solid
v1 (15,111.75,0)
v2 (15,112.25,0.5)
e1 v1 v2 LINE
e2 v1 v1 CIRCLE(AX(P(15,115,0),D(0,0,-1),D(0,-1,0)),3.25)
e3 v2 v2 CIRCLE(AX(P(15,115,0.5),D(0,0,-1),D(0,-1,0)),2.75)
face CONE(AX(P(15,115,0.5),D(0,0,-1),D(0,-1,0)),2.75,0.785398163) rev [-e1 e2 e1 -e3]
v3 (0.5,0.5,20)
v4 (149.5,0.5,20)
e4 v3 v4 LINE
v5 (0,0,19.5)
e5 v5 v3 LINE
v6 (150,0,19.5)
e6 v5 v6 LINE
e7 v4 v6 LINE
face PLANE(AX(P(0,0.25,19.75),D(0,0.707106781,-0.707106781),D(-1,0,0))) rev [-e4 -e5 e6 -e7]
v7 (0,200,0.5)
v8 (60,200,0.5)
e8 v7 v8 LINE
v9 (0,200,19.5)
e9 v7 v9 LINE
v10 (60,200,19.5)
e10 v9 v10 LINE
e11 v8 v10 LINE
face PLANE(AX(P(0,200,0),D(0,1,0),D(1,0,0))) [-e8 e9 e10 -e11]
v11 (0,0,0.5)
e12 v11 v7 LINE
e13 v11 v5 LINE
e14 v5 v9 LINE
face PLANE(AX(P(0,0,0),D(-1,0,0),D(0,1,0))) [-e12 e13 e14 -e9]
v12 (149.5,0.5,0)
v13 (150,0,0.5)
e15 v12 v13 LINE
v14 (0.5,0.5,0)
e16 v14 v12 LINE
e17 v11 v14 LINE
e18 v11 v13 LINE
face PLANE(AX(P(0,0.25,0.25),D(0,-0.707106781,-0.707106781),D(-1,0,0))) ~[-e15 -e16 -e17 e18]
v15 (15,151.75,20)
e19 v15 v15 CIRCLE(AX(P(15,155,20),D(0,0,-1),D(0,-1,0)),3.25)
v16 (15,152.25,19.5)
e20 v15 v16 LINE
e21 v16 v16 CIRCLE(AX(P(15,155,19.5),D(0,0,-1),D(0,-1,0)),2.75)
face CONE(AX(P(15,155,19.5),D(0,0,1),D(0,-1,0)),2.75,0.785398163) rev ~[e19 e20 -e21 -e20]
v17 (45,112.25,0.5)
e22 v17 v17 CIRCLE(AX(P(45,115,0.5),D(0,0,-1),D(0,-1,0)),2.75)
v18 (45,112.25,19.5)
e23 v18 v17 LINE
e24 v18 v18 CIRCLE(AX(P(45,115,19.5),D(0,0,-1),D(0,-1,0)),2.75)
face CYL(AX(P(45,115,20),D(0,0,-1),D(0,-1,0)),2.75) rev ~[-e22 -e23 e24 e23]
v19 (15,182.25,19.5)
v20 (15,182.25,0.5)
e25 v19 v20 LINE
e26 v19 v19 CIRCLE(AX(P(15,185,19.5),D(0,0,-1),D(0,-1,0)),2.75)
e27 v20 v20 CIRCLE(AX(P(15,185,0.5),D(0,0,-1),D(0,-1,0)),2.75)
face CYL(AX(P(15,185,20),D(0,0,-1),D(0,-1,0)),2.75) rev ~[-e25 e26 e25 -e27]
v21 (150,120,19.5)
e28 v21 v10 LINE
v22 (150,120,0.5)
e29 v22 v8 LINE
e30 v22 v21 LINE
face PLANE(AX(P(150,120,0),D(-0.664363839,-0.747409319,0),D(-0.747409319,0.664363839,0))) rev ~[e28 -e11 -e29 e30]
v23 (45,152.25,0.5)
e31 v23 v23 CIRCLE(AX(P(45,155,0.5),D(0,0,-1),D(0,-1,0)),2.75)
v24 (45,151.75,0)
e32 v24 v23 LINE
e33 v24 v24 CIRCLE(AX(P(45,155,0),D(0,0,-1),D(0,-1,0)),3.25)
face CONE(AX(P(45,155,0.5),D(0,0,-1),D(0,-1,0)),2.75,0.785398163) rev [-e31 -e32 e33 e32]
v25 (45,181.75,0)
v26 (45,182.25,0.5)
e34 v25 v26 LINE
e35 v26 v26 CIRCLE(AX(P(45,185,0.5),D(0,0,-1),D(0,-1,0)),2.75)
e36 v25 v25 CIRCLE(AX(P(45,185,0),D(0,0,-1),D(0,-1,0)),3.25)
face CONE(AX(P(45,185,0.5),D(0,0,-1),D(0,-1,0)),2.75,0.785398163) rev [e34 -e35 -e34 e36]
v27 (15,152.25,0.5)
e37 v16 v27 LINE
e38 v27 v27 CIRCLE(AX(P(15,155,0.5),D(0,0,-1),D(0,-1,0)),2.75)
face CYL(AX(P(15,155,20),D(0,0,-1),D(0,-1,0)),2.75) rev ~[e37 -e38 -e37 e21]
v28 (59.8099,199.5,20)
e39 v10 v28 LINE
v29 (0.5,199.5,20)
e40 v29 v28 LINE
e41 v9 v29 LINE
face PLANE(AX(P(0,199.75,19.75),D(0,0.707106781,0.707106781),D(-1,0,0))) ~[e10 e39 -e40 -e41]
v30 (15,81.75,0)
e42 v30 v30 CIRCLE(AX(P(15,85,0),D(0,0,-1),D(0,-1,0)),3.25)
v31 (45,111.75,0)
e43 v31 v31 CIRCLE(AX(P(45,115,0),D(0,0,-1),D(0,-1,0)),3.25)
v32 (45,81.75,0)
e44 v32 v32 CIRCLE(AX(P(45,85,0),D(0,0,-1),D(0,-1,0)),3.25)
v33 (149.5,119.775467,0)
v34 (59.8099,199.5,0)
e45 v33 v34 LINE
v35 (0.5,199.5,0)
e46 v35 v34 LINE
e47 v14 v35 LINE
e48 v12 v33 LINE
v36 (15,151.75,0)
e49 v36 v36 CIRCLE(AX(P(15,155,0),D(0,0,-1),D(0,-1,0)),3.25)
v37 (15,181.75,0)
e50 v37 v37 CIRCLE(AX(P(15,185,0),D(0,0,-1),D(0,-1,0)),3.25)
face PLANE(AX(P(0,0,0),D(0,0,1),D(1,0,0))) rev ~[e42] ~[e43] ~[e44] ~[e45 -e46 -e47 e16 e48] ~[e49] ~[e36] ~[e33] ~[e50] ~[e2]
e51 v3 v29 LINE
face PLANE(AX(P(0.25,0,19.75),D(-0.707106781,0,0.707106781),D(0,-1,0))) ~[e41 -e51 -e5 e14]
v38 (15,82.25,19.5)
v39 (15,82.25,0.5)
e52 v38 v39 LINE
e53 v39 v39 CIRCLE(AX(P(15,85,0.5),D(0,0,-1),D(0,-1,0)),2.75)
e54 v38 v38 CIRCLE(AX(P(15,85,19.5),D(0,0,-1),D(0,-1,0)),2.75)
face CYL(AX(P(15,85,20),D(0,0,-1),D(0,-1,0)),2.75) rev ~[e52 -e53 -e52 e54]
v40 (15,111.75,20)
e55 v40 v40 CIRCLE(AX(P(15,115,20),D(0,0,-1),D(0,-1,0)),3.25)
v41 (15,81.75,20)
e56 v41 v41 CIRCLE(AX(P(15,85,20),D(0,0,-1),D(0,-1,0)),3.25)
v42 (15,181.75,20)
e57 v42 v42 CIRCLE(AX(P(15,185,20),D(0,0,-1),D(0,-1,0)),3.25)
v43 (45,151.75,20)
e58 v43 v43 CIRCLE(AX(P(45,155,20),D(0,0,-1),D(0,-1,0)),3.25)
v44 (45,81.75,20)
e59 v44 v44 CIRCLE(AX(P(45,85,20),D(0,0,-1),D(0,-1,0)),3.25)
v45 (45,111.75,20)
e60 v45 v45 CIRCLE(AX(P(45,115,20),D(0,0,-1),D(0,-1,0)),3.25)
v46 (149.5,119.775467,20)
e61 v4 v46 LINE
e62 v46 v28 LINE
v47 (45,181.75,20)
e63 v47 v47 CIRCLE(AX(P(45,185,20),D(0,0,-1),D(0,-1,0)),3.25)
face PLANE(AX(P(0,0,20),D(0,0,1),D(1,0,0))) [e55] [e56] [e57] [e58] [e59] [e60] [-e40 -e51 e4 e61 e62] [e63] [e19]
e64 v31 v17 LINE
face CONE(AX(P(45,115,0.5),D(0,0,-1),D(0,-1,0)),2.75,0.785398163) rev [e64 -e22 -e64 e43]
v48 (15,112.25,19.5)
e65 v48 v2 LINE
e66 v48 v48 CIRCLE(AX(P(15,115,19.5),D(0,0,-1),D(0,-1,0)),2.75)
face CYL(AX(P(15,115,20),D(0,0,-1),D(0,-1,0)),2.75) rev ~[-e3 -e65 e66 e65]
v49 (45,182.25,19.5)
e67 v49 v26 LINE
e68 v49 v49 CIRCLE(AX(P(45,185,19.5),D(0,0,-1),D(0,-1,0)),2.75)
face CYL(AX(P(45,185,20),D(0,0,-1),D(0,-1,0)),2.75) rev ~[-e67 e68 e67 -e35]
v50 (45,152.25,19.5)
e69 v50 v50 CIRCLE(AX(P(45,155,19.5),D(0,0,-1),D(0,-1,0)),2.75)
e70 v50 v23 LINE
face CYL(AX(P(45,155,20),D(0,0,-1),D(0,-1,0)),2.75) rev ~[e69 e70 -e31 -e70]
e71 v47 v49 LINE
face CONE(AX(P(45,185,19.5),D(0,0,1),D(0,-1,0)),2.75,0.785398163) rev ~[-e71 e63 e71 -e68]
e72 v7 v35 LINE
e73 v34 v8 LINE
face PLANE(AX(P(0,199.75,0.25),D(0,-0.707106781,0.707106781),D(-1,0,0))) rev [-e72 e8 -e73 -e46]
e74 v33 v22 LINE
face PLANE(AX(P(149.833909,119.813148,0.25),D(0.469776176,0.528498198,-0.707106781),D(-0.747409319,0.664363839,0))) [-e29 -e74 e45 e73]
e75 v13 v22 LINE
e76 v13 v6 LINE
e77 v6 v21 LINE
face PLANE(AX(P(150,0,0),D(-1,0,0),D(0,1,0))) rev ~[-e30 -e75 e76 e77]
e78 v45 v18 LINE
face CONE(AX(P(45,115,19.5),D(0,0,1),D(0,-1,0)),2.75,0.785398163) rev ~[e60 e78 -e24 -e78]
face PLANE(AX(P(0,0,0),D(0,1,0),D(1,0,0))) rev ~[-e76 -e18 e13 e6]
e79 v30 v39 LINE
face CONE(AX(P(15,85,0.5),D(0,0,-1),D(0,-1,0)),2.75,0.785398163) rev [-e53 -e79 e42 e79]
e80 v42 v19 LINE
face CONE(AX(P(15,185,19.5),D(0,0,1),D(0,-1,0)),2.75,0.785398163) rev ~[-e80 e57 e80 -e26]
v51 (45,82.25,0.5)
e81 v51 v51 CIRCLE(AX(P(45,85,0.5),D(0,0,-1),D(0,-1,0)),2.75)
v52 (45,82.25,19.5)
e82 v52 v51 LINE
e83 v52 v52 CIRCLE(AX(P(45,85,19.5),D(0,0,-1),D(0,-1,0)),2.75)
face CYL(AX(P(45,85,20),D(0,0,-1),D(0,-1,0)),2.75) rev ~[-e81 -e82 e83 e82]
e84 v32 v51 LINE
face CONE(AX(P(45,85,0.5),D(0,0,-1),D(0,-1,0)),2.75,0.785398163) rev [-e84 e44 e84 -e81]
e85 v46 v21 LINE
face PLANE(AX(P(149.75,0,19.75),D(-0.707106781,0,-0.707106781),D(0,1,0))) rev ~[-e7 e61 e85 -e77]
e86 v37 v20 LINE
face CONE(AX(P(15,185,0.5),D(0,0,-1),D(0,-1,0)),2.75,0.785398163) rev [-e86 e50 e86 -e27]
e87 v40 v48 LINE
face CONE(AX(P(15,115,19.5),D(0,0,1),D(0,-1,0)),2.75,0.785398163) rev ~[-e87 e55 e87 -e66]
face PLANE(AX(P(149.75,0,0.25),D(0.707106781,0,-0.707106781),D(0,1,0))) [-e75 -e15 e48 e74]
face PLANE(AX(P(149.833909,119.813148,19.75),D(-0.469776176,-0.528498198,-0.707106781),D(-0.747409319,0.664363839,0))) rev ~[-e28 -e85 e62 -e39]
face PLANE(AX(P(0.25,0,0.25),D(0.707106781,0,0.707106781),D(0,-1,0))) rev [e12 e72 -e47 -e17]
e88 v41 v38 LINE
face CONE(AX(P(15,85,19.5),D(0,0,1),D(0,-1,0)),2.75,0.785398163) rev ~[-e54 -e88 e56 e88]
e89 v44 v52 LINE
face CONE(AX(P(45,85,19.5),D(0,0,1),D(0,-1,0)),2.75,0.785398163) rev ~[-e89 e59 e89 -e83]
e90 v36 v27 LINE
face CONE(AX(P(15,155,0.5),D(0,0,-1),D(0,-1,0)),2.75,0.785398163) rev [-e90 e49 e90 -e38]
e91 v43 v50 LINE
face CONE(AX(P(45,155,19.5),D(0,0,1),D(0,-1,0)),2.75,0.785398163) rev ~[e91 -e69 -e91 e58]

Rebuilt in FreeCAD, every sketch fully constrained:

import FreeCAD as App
import Part
import Sketcher
from FreeCAD import Vector


def edges_at(feature, points):
    """Names of the edges that pass closest to the given points."""
    edges = feature.Shape.Edges
    near = lambda p: min(range(len(edges)), key=lambda i: edges[i].distToShape(Part.Vertex(*p))[0])
    return sorted({f"Edge{near(p) + 1}" for p in points})

doc = App.newDocument("Part")
body = doc.addObject("PartDesign::Body", "Body")

# Sketch on XY plane
sketch1 = body.newObject("Sketcher::SketchObject", "Sketch")
sketch1.AttachmentSupport = (doc.getObject("XY_Plane"), [""])
sketch1.MapMode = "FlatFace"
sketch1.addGeometry(Part.LineSegment(Vector(0, 200, 0), Vector(0, 0, 0)), False)
sketch1.addGeometry(Part.LineSegment(Vector(0, 0, 0), Vector(150, 0, 0)), False)
sketch1.addGeometry(Part.LineSegment(Vector(150, 0, 0), Vector(150, 120, 0)), False)
sketch1.addGeometry(Part.LineSegment(Vector(150, 120, 0), Vector(60, 200, 0)), False)
sketch1.addGeometry(Part.LineSegment(Vector(60, 200, 0), Vector(0, 200, 0)), False)
sketch1.addConstraint(Sketcher.Constraint("Coincident", 0, 2, 1, 1))
sketch1.addConstraint(Sketcher.Constraint("Coincident", 1, 2, 2, 1))
sketch1.addConstraint(Sketcher.Constraint("Coincident", 2, 2, 3, 1))
sketch1.addConstraint(Sketcher.Constraint("Coincident", 3, 2, 4, 1))
sketch1.addConstraint(Sketcher.Constraint("Coincident", 4, 2, 0, 1))
sketch1.addConstraint(Sketcher.Constraint("Vertical", 0))
sketch1.addConstraint(Sketcher.Constraint("Horizontal", 1))
sketch1.addConstraint(Sketcher.Constraint("Vertical", 2))
sketch1.addConstraint(Sketcher.Constraint("Horizontal", 4))
sketch1.addConstraint(Sketcher.Constraint("Coincident", 0, 2, -1, 1))
sketch1.addConstraint(Sketcher.Constraint("DistanceX", 1, 1, 1, 2, 150.0))
sketch1.addConstraint(Sketcher.Constraint("DistanceX", 4, 2, 4, 1, 60.0))
sketch1.addConstraint(Sketcher.Constraint("DistanceY", 0, 2, 0, 1, 200.0))
sketch1.addConstraint(Sketcher.Constraint("DistanceY", 2, 1, 2, 2, 120.0))
pad1 = body.newObject("PartDesign::Pad", "Pad")
pad1.Profile = sketch1
pad1.Length = 20

# Sketch on XY plane
sketch2 = body.newObject("Sketcher::SketchObject", "Sketch001")
sketch2.AttachmentSupport = (doc.getObject("XY_Plane"), [""])
sketch2.MapMode = "FlatFace"
sketch2.AttachmentOffset = App.Placement(Vector(0, 0, 20), App.Rotation())
sketch2.addGeometry(Part.Circle(Vector(15, 185, 0), Vector(0, 0, 1), 2.8), False)
sketch2.addGeometry(Part.Circle(Vector(45, 185, 0), Vector(0, 0, 1), 2.8), False)
sketch2.addGeometry(Part.Circle(Vector(15, 155, 0), Vector(0, 0, 1), 2.8), False)
sketch2.addGeometry(Part.Circle(Vector(45, 155, 0), Vector(0, 0, 1), 2.8), False)
sketch2.addGeometry(Part.Circle(Vector(15, 115, 0), Vector(0, 0, 1), 2.8), False)
sketch2.addGeometry(Part.Circle(Vector(45, 115, 0), Vector(0, 0, 1), 2.8), False)
sketch2.addGeometry(Part.Circle(Vector(15, 85, 0), Vector(0, 0, 1), 2.8), False)
sketch2.addGeometry(Part.Circle(Vector(45, 85, 0), Vector(0, 0, 1), 2.8), False)
sketch2.addConstraint(Sketcher.Constraint("Equal", 0, 1))
sketch2.addConstraint(Sketcher.Constraint("Equal", 1, 2))
sketch2.addConstraint(Sketcher.Constraint("Equal", 2, 3))
sketch2.addConstraint(Sketcher.Constraint("Equal", 3, 4))
sketch2.addConstraint(Sketcher.Constraint("Equal", 4, 5))
sketch2.addConstraint(Sketcher.Constraint("Equal", 5, 6))
sketch2.addConstraint(Sketcher.Constraint("Equal", 6, 7))
sketch2.addConstraint(Sketcher.Constraint("Horizontal", 0, 3, 1, 3))
sketch2.addConstraint(Sketcher.Constraint("Horizontal", 2, 3, 3, 3))
sketch2.addConstraint(Sketcher.Constraint("Horizontal", 4, 3, 5, 3))
sketch2.addConstraint(Sketcher.Constraint("Horizontal", 6, 3, 7, 3))
sketch2.addConstraint(Sketcher.Constraint("Vertical", 0, 3, 2, 3))
sketch2.addConstraint(Sketcher.Constraint("Vertical", 1, 3, 3, 3))
sketch2.addConstraint(Sketcher.Constraint("Vertical", 2, 3, 4, 3))
sketch2.addConstraint(Sketcher.Constraint("Vertical", 3, 3, 5, 3))
sketch2.addConstraint(Sketcher.Constraint("Vertical", 4, 3, 6, 3))
sketch2.addConstraint(Sketcher.Constraint("Vertical", 5, 3, 7, 3))
sketch2.addConstraint(Sketcher.Constraint("Diameter", 0, 5.5))
sketch2.addConstraint(Sketcher.Constraint("DistanceX", -1, 1, 0, 3, 15.0))
sketch2.addConstraint(Sketcher.Constraint("DistanceY", -1, 1, 0, 3, 185.0))
sketch2.addConstraint(Sketcher.Constraint("DistanceX", -1, 1, 1, 3, 45.0))
sketch2.addConstraint(Sketcher.Constraint("DistanceY", -1, 1, 2, 3, 155.0))
sketch2.addConstraint(Sketcher.Constraint("DistanceY", -1, 1, 4, 3, 115.0))
sketch2.addConstraint(Sketcher.Constraint("DistanceY", -1, 1, 6, 3, 85.0))
doc.recompute()
hole = body.newObject("PartDesign::Hole", "Hole")
hole.Profile = sketch2
hole.ThreadType = "None"
hole.Diameter = 5.5
hole.DepthType = "ThroughAll"
doc.recompute()

chamfer = body.newObject("PartDesign::Chamfer", "Chamfer")
chamfer.Base = (hole, edges_at(hole, [
    (30, 200, 20),
    (105, 160, 20),
    (150, 60, 20),
    (75, 0, 20),
    (0, 100, 20),
    (15, 87.75, 20),
    (15, 117.75, 20),
    (45, 87.75, 20),
    (45, 117.75, 20),
    (15, 157.75, 20),
    (15, 187.75, 20),
    (45, 157.75, 20),
    (45, 187.75, 20),
    (105, 160, 0),
    (30, 200, 0),
    (0, 100, 0),
    (150, 60, 0),
    (75, 0, 0),
]))
chamfer.Size = 0.5
doc.recompute()

chamfer2 = body.newObject("PartDesign::Chamfer", "Chamfer001")
chamfer2.Base = (chamfer, edges_at(chamfer, [
    (15, 87.75, 0),
    (15, 117.75, 0),
    (45, 87.75, 0),
    (45, 117.75, 0),
    (15, 157.75, 0),
    (15, 187.75, 0),
    (45, 157.75, 0),
    (45, 187.75, 0),
]))
chamfer2.Size = 0.5

doc.recompute()
